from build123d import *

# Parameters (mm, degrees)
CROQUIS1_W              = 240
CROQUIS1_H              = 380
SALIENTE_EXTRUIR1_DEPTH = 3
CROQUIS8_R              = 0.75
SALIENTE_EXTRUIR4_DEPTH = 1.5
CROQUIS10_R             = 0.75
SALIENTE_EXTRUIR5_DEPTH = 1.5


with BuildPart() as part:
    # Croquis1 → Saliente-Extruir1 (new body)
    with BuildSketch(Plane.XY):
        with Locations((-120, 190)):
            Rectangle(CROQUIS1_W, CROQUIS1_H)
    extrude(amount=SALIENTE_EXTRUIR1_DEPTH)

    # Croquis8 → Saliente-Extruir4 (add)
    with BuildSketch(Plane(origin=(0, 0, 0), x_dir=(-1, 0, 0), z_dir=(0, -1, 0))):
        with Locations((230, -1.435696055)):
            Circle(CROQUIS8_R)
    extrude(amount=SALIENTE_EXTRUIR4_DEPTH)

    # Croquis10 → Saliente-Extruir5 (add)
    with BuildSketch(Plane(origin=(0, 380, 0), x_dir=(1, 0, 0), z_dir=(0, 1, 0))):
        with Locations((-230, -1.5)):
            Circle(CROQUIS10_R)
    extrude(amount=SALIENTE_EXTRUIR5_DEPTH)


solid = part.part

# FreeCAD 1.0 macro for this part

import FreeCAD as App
import Part
import Sketcher

V = App.Vector

doc = App.newDocument("Part")
params = doc.addObject("Spreadsheet::Sheet", "Params")
for row, (alias, value) in enumerate([
    ("sketch1_width", "240 mm"),
    ("sketch1_height", "380 mm"),
    ("pad1_length", "3 mm"),
    ("sketch2_diameter", "1.5 mm"),
    ("pad2_length", "1.5 mm"),
    ("sketch3_diameter", "1.5 mm"),
    ("pad3_length", "1.5 mm"),
], start=1):
    params.set(f"A{row}", alias)
    params.set(f"B{row}", "=" + value)
    params.setAlias(f"B{row}", alias)

body = doc.addObject("PartDesign::Body", "Body")

# Sketch on XY plane
sketch1 = doc.addObject("Sketcher::SketchObject", "Sketch")
body.addObject(sketch1)
sketch1.AttachmentSupport = (doc.XY_Plane, [""])
sketch1.MapMode = "FlatFace"
sketch1.addGeometry(Part.LineSegment(V(-240, 380, 0), V(-240, 0, 0)), False)
sketch1.addGeometry(Part.LineSegment(V(-240, 0, 0), V(0, 0, 0)), False)
sketch1.addGeometry(Part.LineSegment(V(0, 0, 0), V(0, 380, 0)), False)
sketch1.addGeometry(Part.LineSegment(V(0, 380, 0), V(-240, 380, 0)), False)
sketch1.addConstraint(Sketcher.Constraint("Coincident", 0, 2, 1, 1))
sketch1.addConstraint(Sketcher.Constraint("Coincident", 1, 2, 2, 1))
sketch1.addConstraint(Sketcher.Constraint("Coincident", 2, 2, 3, 1))
sketch1.addConstraint(Sketcher.Constraint("Coincident", 3, 2, 0, 1))
sketch1.addConstraint(Sketcher.Constraint("Vertical", 0))
sketch1.addConstraint(Sketcher.Constraint("Horizontal", 1))
sketch1.addConstraint(Sketcher.Constraint("Vertical", 2))
sketch1.addConstraint(Sketcher.Constraint("Horizontal", 3))
sketch1.addConstraint(Sketcher.Constraint("Coincident", 1, 2, -1, 1))
sketch1.addConstraint(Sketcher.Constraint("DistanceX", 1, 1, 1, 2, 240.0))
sketch1.addConstraint(Sketcher.Constraint("DistanceY", 0, 2, 0, 1, 380.0))
sketch1.setExpression("Constraints[9]", "Params.sketch1_width")
sketch1.setExpression("Constraints[10]", "Params.sketch1_height")
pad1 = doc.addObject("PartDesign::Pad", "Pad")
body.addObject(pad1)
pad1.Profile = sketch1
pad1.setExpression("Length", "Params.pad1_length")

# Sketch on XZ plane
sketch2 = doc.addObject("Sketcher::SketchObject", "Sketch001")
body.addObject(sketch2)
sketch2.AttachmentSupport = (doc.XZ_Plane, [""])
sketch2.MapMode = "FlatFace"
sketch2.addGeometry(Part.Circle(V(-230, 1.435696, 0), V(0, 0, 1), 0.75), False)
sketch2.addConstraint(Sketcher.Constraint("Diameter", 0, 1.5))
sketch2.addConstraint(Sketcher.Constraint("DistanceX", 0, 3, -1, 1, 230.0))
sketch2.addConstraint(Sketcher.Constraint("DistanceY", -1, 1, 0, 3, 1.435696))
sketch2.setExpression("Constraints[0]", "Params.sketch2_diameter")
pad2 = doc.addObject("PartDesign::Pad", "Pad001")
body.addObject(pad2)
pad2.Profile = sketch2
pad2.setExpression("Length", "Params.pad2_length")

# Sketch on XZ plane
sketch3 = doc.addObject("Sketcher::SketchObject", "Sketch002")
body.addObject(sketch3)
sketch3.AttachmentSupport = (doc.XZ_Plane, [""])
sketch3.MapMode = "FlatFace"
sketch3.AttachmentOffset = App.Placement(V(0, 0, -380), App.Rotation())
sketch3.addGeometry(Part.Circle(V(-230, 1.5, 0), V(0, 0, 1), 0.75), False)
sketch3.addConstraint(Sketcher.Constraint("Diameter", 0, 1.5))
sketch3.addConstraint(Sketcher.Constraint("DistanceX", 0, 3, -1, 1, 230.0))
sketch3.addConstraint(Sketcher.Constraint("DistanceY", -1, 1, 0, 3, 1.5))
sketch3.setExpression("Constraints[0]", "Params.sketch3_diameter")
pad3 = doc.addObject("PartDesign::Pad", "Pad002")
body.addObject(pad3)
pad3.Profile = sketch3
pad3.setExpression("Length", "Params.pad3_length")
pad3.Reversed = True

doc.recompute()
